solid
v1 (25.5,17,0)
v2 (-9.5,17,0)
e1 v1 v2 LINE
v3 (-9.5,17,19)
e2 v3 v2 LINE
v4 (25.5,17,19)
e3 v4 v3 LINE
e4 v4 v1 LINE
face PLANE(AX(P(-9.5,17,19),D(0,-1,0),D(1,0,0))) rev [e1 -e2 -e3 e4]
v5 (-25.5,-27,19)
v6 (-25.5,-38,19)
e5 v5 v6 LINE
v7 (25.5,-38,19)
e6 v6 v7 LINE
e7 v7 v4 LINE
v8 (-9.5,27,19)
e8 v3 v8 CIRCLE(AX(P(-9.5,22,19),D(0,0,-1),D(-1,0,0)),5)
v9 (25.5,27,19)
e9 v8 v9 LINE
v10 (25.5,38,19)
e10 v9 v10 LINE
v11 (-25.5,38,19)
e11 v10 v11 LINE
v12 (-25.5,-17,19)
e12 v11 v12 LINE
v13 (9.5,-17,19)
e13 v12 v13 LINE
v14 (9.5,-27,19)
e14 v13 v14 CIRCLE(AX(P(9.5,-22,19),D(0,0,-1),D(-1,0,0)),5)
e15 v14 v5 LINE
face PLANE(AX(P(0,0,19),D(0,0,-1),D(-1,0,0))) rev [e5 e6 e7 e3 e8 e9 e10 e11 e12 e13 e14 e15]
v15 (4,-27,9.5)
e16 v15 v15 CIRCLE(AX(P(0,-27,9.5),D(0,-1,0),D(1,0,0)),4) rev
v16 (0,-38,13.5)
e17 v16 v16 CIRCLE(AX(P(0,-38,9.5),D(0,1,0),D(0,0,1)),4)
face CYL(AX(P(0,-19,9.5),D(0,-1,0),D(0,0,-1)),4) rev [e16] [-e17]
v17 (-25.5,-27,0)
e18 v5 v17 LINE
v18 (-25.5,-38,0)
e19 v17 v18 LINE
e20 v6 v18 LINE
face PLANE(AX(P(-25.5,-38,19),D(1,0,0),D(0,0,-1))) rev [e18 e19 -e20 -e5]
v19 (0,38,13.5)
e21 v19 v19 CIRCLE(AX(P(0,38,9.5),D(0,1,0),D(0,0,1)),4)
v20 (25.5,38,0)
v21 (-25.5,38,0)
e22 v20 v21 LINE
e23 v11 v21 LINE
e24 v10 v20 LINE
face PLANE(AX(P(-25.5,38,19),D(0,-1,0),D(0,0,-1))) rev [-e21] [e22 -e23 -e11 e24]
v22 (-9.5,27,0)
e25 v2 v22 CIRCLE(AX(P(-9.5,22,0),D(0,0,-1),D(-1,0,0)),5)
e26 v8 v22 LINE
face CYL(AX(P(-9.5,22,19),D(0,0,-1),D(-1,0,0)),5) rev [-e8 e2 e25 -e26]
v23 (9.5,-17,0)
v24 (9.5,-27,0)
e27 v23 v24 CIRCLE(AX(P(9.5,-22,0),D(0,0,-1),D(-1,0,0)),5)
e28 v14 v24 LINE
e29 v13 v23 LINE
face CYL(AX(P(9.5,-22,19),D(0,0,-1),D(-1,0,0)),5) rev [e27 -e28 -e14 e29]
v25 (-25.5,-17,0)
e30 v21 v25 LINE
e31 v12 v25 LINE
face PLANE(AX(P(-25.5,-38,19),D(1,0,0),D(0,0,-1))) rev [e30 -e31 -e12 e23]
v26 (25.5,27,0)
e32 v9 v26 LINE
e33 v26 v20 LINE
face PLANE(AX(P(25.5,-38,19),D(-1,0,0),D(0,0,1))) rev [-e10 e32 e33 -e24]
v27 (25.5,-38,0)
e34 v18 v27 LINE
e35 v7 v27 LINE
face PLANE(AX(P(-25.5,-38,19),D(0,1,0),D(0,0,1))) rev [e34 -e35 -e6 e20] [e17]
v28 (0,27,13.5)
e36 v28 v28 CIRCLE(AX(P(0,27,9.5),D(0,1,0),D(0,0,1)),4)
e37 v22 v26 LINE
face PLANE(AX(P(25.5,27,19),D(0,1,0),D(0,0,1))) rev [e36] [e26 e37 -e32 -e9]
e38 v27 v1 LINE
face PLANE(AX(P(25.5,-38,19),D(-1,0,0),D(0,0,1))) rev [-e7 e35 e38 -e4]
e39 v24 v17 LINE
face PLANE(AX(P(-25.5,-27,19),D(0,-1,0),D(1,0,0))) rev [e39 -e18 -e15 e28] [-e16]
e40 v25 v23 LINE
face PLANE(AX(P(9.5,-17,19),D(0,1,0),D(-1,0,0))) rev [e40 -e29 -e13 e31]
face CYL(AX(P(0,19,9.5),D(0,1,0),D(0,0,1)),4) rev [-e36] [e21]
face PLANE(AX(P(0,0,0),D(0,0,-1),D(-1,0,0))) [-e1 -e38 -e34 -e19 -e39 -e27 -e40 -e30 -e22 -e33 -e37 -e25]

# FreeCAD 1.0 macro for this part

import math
import FreeCAD as App
import Part
import Sketcher
from FreeCAD import Vector
Q = App.Units.Quantity

doc = App.newDocument("Part")
body = doc.addObject("PartDesign::Body", "Body")

sketch1 = body.newObject("Sketcher::SketchObject", "Sketch")
sketch1.AttachmentSupport = (doc.getObject("XY_Plane"), [""])
sketch1.MapMode = "FlatFace"
sketch1.addGeometry(Part.LineSegment(Vector(-26, 38, 0), Vector(-26, -38, 0)), False)
sketch1.addGeometry(Part.LineSegment(Vector(-26, -38, 0), Vector(26, -38, 0)), False)
sketch1.addGeometry(Part.LineSegment(Vector(26, -38, 0), Vector(26, 38, 0)), False)
sketch1.addGeometry(Part.LineSegment(Vector(26, 38, 0), Vector(-26, 38, 0)), False)
sketch1.addConstraint(Sketcher.Constraint("Coincident", 0, 2, 1, 1))
sketch1.addConstraint(Sketcher.Constraint("Coincident", 1, 2, 2, 1))
sketch1.addConstraint(Sketcher.Constraint("Coincident", 2, 2, 3, 1))
sketch1.addConstraint(Sketcher.Constraint("Coincident", 3, 2, 0, 1))
sketch1.addConstraint(Sketcher.Constraint("Vertical", 0))
sketch1.addConstraint(Sketcher.Constraint("Horizontal", 1))
sketch1.addConstraint(Sketcher.Constraint("Vertical", 2))
sketch1.addConstraint(Sketcher.Constraint("Horizontal", 3))
sketch1.addConstraint(Sketcher.Constraint("Symmetric", 0, 2, 2, 2, -1, 1))
sketch1.addConstraint(Sketcher.Constraint("DistanceX", 1, 1, 1, 2, Q("51 mm")))
sketch1.addConstraint(Sketcher.Constraint("DistanceY", 0, 2, 0, 1, Q("76 mm")))
pad1 = body.newObject("PartDesign::Pad", "Pad")
pad1.Profile = sketch1
pad1.Length = 19

sketch2 = body.newObject("Sketcher::SketchObject", "Sketch001")
sketch2.AttachmentSupport = (doc.getObject("XY_Plane"), [""])
sketch2.MapMode = "FlatFace"
sketch2.addGeometry(Part.LineSegment(Vector(-10, 27, 0), Vector(26, 27, 0)), False)
sketch2.addGeometry(Part.LineSegment(Vector(26, 27, 0), Vector(26, 17, 0)), False)
sketch2.addGeometry(Part.LineSegment(Vector(26, 17, 0), Vector(-10, 17, 0)), False)
sketch2.addGeometry(Part.ArcOfCircle(Part.Circle(Vector(-10, 22, 0), Vector(0, 0, 1), 5), math.radians(90), math.radians(270)), False)
sketch2.addGeometry(Part.LineSegment(Vector(10, -27, 0), Vector(-26, -27, 0)), False)
sketch2.addGeometry(Part.LineSegment(Vector(-26, -27, 0), Vector(-26, -17, 0)), False)
sketch2.addGeometry(Part.LineSegment(Vector(-26, -17, 0), Vector(10, -17, 0)), False)
sketch2.addGeometry(Part.ArcOfCircle(Part.Circle(Vector(10, -22, 0), Vector(0, 0, 1), 5), math.radians(-90), math.radians(90)), False)
sketch2.addConstraint(Sketcher.Constraint("Coincident", 0, 2, 1, 1))
sketch2.addConstraint(Sketcher.Constraint("Coincident", 1, 2, 2, 1))
sketch2.addConstraint(Sketcher.Constraint("Tangent", 2, 2, 3, 2))
sketch2.addConstraint(Sketcher.Constraint("Tangent", 3, 1, 0, 1))
sketch2.addConstraint(Sketcher.Constraint("Coincident", 4, 2, 5, 1))
sketch2.addConstraint(Sketcher.Constraint("Coincident", 5, 2, 6, 1))
sketch2.addConstraint(Sketcher.Constraint("Tangent", 6, 2, 7, 2))
sketch2.addConstraint(Sketcher.Constraint("Tangent", 7, 1, 4, 1))
sketch2.addConstraint(Sketcher.Constraint("Horizontal", 0))
sketch2.addConstraint(Sketcher.Constraint("Vertical", 1))
sketch2.addConstraint(Sketcher.Constraint("Horizontal", 2))
sketch2.addConstraint(Sketcher.Constraint("Horizontal", 4))
sketch2.addConstraint(Sketcher.Constraint("Vertical", 5))
sketch2.addConstraint(Sketcher.Constraint("Horizontal", 6))
sketch2.addConstraint(Sketcher.Constraint("Equal", 3, 7))
sketch2.addConstraint(Sketcher.Constraint("Symmetric", 3, 3, 7, 3, -1, 1))
sketch2.addConstraint(Sketcher.Constraint("Equal", 2, 4))
sketch2.addConstraint(Sketcher.Constraint("Radius", 3, Q("5 mm")))
sketch2.addConstraint(Sketcher.Constraint("DistanceX", 0, 1, 0, 2, Q("35 mm")))
sketch2.addConstraint(Sketcher.Constraint("DistanceY", -1, 1, 3, 3, Q("22 mm")))
sketch2.addConstraint(Sketcher.Constraint("DistanceX", 3, 3, 7, 3, Q("19 mm")))
pocket1 = body.newObject("PartDesign::Pocket", "Pocket")
pocket1.Profile = sketch2
pocket1.Type = "ThroughAll"
pocket1.Reversed = True

sketch3 = body.newObject("Sketcher::SketchObject", "Sketch002")
sketch3.AttachmentSupport = (doc.getObject("XZ_Plane"), [""])
sketch3.MapMode = "FlatFace"
sketch3.AttachmentOffset = App.Placement(Vector(0, 0, -38), App.Rotation())
sketch3.addGeometry(Part.Circle(Vector(0, 9.5, 0), Vector(0, 0, 1), 4), False)
sketch3.addConstraint(Sketcher.Constraint("PointOnObject", 0, 3, -2))
sketch3.addConstraint(Sketcher.Constraint("Diameter", 0, Q("8 mm")))
sketch3.addConstraint(Sketcher.Constraint("DistanceY", -1, 1, 0, 3, Q("9.5 mm")))
pocket2 = body.newObject("PartDesign::Pocket", "Pocket001")
pocket2.Profile = sketch3
pocket2.Length = 19
pocket2.Reversed = True
doc.recompute()

mirrored = body.newObject("PartDesign::Mirrored", "Mirrored")
mirrored.Originals = [pocket2]
mirrored.MirrorPlane = (doc.getObject("XZ_Plane"), [""])
body.Tip = mirrored

doc.recompute()
